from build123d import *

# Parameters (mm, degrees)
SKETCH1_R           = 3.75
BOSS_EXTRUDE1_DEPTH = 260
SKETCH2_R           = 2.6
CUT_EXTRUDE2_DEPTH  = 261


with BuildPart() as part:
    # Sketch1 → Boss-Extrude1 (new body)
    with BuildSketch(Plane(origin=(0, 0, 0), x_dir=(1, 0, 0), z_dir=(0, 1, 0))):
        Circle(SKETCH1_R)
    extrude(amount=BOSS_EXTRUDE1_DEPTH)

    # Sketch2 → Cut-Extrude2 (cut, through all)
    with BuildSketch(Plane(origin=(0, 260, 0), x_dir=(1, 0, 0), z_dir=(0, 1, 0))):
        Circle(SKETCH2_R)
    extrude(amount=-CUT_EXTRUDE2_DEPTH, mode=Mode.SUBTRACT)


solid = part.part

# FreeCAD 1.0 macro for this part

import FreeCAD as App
import Part
import Sketcher
from FreeCAD import Vector
Q = App.Units.Quantity

doc = App.newDocument("Part")
params = doc.addObject("Spreadsheet::Sheet", "Params")
for row, (alias, value) in enumerate([
    ("sketch1_diameter", "7.5 mm"),
    ("pad1_length", "260 mm"),
    ("sketch2_diameter", "5.2 mm"),
], start=1):
    params.set(f"A{row}", alias)
    params.set(f"B{row}", "=" + value)
    params.setAlias(f"B{row}", alias)

body = doc.addObject("PartDesign::Body", "Body")

sketch1 = body.newObject("Sketcher::SketchObject", "Sketch")
sketch1.AttachmentSupport = (doc.getObject("XZ_Plane"), [""])
sketch1.MapMode = "FlatFace"
sketch1.addGeometry(Part.Circle(Vector(0, 0, 0), Vector(0, 0, 1), 3.8), False)
sketch1.addConstraint(Sketcher.Constraint("Coincident", 0, 3, -1, 1))
sketch1.addConstraint(Sketcher.Constraint("Diameter", 0, Q("7.5 mm")))
sketch1.setExpression("Constraints[1]", "Params.sketch1_diameter")
pad1 = body.newObject("PartDesign::Pad", "Pad")
pad1.Profile = sketch1
pad1.setExpression("Length", "Params.pad1_length")
pad1.Reversed = True

sketch2 = body.newObject("Sketcher::SketchObject", "Sketch001")
sketch2.AttachmentSupport = (doc.getObject("XZ_Plane"), [""])
sketch2.MapMode = "FlatFace"
sketch2.AttachmentOffset = App.Placement(Vector(0, 0, -260), App.Rotation())
sketch2.addGeometry(Part.Circle(Vector(0, 0, 0), Vector(0, 0, 1), 2.6), False)
sketch2.addConstraint(Sketcher.Constraint("Coincident", 0, 3, -1, 1))
sketch2.addConstraint(Sketcher.Constraint("Diameter", 0, Q("5.2 mm")))
sketch2.setExpression("Constraints[1]", "Params.sketch2_diameter")
pocket1 = body.newObject("PartDesign::Pocket", "Pocket")
pocket1.Profile = sketch2
pocket1.Type = "ThroughAll"
pocket1.Reversed = True

doc.recompute()
